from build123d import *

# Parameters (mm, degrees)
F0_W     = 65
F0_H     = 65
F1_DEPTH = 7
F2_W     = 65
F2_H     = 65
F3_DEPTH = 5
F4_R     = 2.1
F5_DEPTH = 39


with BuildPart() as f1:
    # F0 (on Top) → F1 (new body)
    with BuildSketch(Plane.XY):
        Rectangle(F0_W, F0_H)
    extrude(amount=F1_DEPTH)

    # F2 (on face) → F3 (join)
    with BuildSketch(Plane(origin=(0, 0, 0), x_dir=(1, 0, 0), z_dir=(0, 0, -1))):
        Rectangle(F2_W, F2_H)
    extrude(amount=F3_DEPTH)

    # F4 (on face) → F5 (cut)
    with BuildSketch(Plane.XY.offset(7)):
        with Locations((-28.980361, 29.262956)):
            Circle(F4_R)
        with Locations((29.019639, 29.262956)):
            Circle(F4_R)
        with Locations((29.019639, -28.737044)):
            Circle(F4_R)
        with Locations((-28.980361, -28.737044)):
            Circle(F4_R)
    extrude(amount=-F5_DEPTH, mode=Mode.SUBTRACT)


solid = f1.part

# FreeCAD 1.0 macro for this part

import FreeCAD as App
import Part
import Sketcher
from FreeCAD import Vector
Q = App.Units.Quantity

doc = App.newDocument("Part")
params = doc.addObject("Spreadsheet::Sheet", "Params")
for row, (alias, value) in enumerate([
    ("sketch1_width", "65 mm"),
    ("pad1_length", "7 mm"),
    ("sketch2_width", "65 mm"),
    ("pad2_length", "5 mm"),
    ("sketch3_diameter", "4.2 mm"),
    ("pocket1_length", "39 mm"),
], start=1):
    params.set(f"A{row}", alias)
    params.set(f"B{row}", "=" + value)
    params.setAlias(f"B{row}", alias)

body = doc.addObject("PartDesign::Body", "Body")

sketch1 = doc.addObject("Sketcher::SketchObject", "Sketch")
body.addObject(sketch1)
sketch1.AttachmentSupport = (doc.XY_Plane, [""])
sketch1.MapMode = "FlatFace"
sketch1.addGeometry([
    Part.LineSegment(Vector(-32, 32, 0), Vector(-32, -32, 0)),
    Part.LineSegment(Vector(-32, -32, 0), Vector(32, -32, 0)),
    Part.LineSegment(Vector(32, -32, 0), Vector(32, 32, 0)),
    Part.LineSegment(Vector(32, 32, 0), Vector(-32, 32, 0)),
], False)
sketch1.addConstraint([
    Sketcher.Constraint("Coincident", 0, 2, 1, 1),
    Sketcher.Constraint("Coincident", 1, 2, 2, 1),
    Sketcher.Constraint("Coincident", 2, 2, 3, 1),
    Sketcher.Constraint("Coincident", 3, 2, 0, 1),
    Sketcher.Constraint("Vertical", 0),
    Sketcher.Constraint("Horizontal", 1),
    Sketcher.Constraint("Vertical", 2),
    Sketcher.Constraint("Horizontal", 3),
    Sketcher.Constraint("Symmetric", 0, 2, 2, 2, -1, 1),
    Sketcher.Constraint("Equal", 3, 0),
    Sketcher.Constraint("DistanceX", 1, 1, 1, 2, Q("65 mm")),
])
sketch1.setExpression("Constraints[10]", "Params.sketch1_width")
pad1 = doc.addObject("PartDesign::Pad", "Pad")
body.addObject(pad1)
pad1.Profile = sketch1
pad1.setExpression("Length", "Params.pad1_length")

sketch2 = doc.addObject("Sketcher::SketchObject", "Sketch001")
body.addObject(sketch2)
sketch2.AttachmentSupport = (doc.XY_Plane, [""])
sketch2.MapMode = "FlatFace"
sketch2.addGeometry([
    Part.LineSegment(Vector(-32, -32, 0), Vector(-32, 32, 0)),
    Part.LineSegment(Vector(-32, 32, 0), Vector(32, 32, 0)),
    Part.LineSegment(Vector(32, 32, 0), Vector(32, -32, 0)),
    Part.LineSegment(Vector(32, -32, 0), Vector(-32, -32, 0)),
], False)
sketch2.addConstraint([
    Sketcher.Constraint("Coincident", 0, 2, 1, 1),
    Sketcher.Constraint("Coincident", 1, 2, 2, 1),
    Sketcher.Constraint("Coincident", 2, 2, 3, 1),
    Sketcher.Constraint("Coincident", 3, 2, 0, 1),
    Sketcher.Constraint("Vertical", 0),
    Sketcher.Constraint("Horizontal", 1),
    Sketcher.Constraint("Vertical", 2),
    Sketcher.Constraint("Horizontal", 3),
    Sketcher.Constraint("Symmetric", 0, 2, 2, 2, -1, 1),
    Sketcher.Constraint("Equal", 3, 0),
    Sketcher.Constraint("DistanceX", 1, 1, 1, 2, Q("65 mm")),
])
sketch2.setExpression("Constraints[10]", "Params.sketch2_width")
pad2 = doc.addObject("PartDesign::Pad", "Pad001")
body.addObject(pad2)
pad2.Profile = sketch2
pad2.setExpression("Length", "Params.pad2_length")
pad2.Reversed = True

sketch3 = doc.addObject("Sketcher::SketchObject", "Sketch002")
body.addObject(sketch3)
sketch3.AttachmentSupport = (doc.XY_Plane, [""])
sketch3.MapMode = "FlatFace"
sketch3.AttachmentOffset = App.Placement(Vector(0, 0, 7), App.Rotation())
sketch3.addGeometry([
    Part.Circle(Vector(-29, 29.3, 0), Vector(0, 0, 1), 2.1),
    Part.Circle(Vector(29, 29.3, 0), Vector(0, 0, 1), 2.1),
    Part.Circle(Vector(29, -28.7, 0), Vector(0, 0, 1), 2.1),
    Part.Circle(Vector(-29, -28.7, 0), Vector(0, 0, 1), 2.1),
], False)
sketch3.addConstraint([
    Sketcher.Constraint("Equal", 0, 1),
    Sketcher.Constraint("Equal", 1, 2),
    Sketcher.Constraint("Equal", 2, 3),
    Sketcher.Constraint("Horizontal", 0, 3, 1, 3),
    Sketcher.Constraint("Horizontal", 2, 3, 3, 3),
    Sketcher.Constraint("Vertical", 1, 3, 2, 3),
    Sketcher.Constraint("Vertical", 0, 3, 3, 3),
    Sketcher.Constraint("Diameter", 0, Q("4.2 mm")),
    Sketcher.Constraint("DistanceX", 0, 3, 1, 3, Q("58 mm")),
    Sketcher.Constraint("DistanceY", 2, 3, 1, 3, Q("58 mm")),
    Sketcher.Constraint("DistanceX", 0, 3, -1, 1, Q("28.980361 mm")),
    Sketcher.Constraint("DistanceY", -1, 1, 0, 3, Q("29.262956 mm")),
])
sketch3.setExpression("Constraints[7]", "Params.sketch3_diameter")
pocket1 = doc.addObject("PartDesign::Pocket", "Pocket")
body.addObject(pocket1)
pocket1.Profile = sketch3
pocket1.setExpression("Length", "Params.pocket1_length")

doc.recompute()
